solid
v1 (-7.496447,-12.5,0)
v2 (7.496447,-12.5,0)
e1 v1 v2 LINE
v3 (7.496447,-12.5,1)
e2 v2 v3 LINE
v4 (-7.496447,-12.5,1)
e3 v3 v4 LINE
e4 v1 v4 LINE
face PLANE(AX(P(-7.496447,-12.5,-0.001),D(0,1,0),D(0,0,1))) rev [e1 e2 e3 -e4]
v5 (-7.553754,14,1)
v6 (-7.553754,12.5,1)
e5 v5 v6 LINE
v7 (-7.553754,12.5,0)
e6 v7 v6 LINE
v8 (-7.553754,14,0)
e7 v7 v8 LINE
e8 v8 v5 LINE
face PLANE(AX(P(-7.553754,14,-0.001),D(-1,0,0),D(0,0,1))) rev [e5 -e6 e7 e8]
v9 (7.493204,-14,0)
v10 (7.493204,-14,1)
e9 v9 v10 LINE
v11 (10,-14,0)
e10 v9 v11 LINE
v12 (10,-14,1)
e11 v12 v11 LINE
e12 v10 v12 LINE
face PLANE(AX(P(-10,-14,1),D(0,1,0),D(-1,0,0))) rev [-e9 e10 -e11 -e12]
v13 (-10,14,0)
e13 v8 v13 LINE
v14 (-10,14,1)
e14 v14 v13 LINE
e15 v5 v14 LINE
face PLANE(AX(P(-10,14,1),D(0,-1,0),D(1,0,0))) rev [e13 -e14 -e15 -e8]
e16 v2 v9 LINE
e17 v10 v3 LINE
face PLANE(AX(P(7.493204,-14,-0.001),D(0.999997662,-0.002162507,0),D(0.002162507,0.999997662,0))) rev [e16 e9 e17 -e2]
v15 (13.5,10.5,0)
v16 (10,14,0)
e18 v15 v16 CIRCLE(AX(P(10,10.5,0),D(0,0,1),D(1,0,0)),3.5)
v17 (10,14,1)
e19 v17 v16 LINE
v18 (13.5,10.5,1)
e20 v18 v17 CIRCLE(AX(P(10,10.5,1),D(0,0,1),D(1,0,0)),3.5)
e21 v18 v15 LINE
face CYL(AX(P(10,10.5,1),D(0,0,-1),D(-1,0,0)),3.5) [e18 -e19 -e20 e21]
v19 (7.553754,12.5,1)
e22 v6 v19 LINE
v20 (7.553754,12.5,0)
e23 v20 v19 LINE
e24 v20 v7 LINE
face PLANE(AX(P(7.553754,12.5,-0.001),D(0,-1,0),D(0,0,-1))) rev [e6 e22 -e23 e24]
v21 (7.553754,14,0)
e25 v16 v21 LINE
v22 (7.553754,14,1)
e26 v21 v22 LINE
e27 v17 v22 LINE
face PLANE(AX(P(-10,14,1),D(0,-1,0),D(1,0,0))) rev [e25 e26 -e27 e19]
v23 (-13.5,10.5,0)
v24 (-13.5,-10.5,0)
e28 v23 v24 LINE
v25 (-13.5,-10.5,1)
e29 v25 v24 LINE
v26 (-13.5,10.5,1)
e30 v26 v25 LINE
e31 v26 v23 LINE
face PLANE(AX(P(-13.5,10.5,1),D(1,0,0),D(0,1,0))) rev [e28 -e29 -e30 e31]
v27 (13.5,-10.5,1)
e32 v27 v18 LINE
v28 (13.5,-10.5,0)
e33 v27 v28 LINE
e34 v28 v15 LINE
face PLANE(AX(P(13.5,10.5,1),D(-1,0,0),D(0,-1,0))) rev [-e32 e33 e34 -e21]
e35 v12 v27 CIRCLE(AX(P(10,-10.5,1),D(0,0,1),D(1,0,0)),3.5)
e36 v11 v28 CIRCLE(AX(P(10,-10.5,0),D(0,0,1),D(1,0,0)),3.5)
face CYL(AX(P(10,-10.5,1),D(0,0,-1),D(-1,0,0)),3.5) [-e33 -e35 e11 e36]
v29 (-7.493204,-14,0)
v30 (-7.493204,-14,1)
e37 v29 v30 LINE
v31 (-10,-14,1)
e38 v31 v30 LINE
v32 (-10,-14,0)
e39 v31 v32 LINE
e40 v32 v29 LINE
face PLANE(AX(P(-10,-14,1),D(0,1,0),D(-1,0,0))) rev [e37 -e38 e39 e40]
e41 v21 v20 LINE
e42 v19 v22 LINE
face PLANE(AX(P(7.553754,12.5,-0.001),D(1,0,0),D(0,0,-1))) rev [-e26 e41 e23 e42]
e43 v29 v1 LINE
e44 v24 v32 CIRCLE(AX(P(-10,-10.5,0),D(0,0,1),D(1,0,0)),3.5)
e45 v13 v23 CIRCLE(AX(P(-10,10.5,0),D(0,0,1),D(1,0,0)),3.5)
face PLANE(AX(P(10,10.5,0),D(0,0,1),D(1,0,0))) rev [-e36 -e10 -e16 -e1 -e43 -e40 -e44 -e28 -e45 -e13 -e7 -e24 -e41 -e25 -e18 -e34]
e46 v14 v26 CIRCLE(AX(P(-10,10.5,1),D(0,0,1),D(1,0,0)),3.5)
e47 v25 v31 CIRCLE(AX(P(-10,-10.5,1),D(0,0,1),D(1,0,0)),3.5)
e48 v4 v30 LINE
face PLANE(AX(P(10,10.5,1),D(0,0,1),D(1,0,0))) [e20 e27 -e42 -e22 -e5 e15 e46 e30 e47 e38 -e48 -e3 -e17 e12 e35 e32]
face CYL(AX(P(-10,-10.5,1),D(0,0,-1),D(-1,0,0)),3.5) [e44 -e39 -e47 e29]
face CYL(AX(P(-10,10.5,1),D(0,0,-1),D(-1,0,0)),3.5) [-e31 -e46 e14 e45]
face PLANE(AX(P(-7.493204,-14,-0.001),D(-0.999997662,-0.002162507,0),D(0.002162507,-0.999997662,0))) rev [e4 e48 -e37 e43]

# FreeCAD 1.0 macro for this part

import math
import FreeCAD as App
import Part
import Sketcher
Q = App.Units.Quantity

doc = App.newDocument("Part")
body = doc.addObject("PartDesign::Body", "Body")

# Sketch on XY plane
sketch1 = doc.addObject("Sketcher::SketchObject", "Sketch")
body.addObject(sketch1)
sketch1.AttachmentSupport = (doc.XY_Plane, [""])
sketch1.MapMode = "FlatFace"
sketch1.addGeometry([
    Part.LineSegment(App.Vector(-13.5, 10.5, 0), App.Vector(-13.5, -10.5, 0)),  # 0
    Part.ArcOfCircle(Part.Circle(App.Vector(-10, -10.5, 0), App.Vector(0, 0, 1), 3.5), math.radians(-180), math.radians(-90)),  # 1
    Part.LineSegment(App.Vector(-10, -14, 0), App.Vector(10, -14, 0)),  # 2
    Part.ArcOfCircle(Part.Circle(App.Vector(10, -10.5, 0), App.Vector(0, 0, 1), 3.5), math.radians(-90), math.radians(0)),  # 3
    Part.LineSegment(App.Vector(13.5, -10.5, 0), App.Vector(13.5, 10.5, 0)),  # 4
    Part.ArcOfCircle(Part.Circle(App.Vector(10, 10.5, 0), App.Vector(0, 0, 1), 3.5), math.radians(0), math.radians(90)),  # 5
    Part.LineSegment(App.Vector(10, 14, 0), App.Vector(-10, 14, 0)),  # 6
    Part.ArcOfCircle(Part.Circle(App.Vector(-10, 10.5, 0), App.Vector(0, 0, 1), 3.5), math.radians(90), math.radians(180)),  # 7
], False)
sketch1.addConstraint([
    Sketcher.Constraint("Tangent", 0, 2, 1, 1),
    Sketcher.Constraint("Tangent", 1, 2, 2, 1),
    Sketcher.Constraint("Tangent", 2, 2, 3, 1),
    Sketcher.Constraint("Tangent", 3, 2, 4, 1),
    Sketcher.Constraint("Tangent", 4, 2, 5, 1),
    Sketcher.Constraint("Tangent", 5, 2, 6, 1),
    Sketcher.Constraint("Tangent", 6, 2, 7, 1),
    Sketcher.Constraint("Tangent", 7, 2, 0, 1),
    Sketcher.Constraint("Vertical", 0),
    Sketcher.Constraint("Horizontal", 2),
    Sketcher.Constraint("Vertical", 4),
    Sketcher.Constraint("Horizontal", 6),
    Sketcher.Constraint("Equal", 1, 3),
    Sketcher.Constraint("Equal", 3, 5),
    Sketcher.Constraint("Equal", 5, 7),
    Sketcher.Constraint("Symmetric", 1, 3, 5, 3, -1, 1),
    Sketcher.Constraint("Radius", 1, Q("3.5 mm")),
    Sketcher.Constraint("DistanceX", 2, 1, 2, 2, Q("20 mm")),
    Sketcher.Constraint("DistanceY", 0, 2, 0, 1, Q("21 mm")),
])
pad1 = doc.addObject("PartDesign::Pad", "Pad")
body.addObject(pad1)
pad1.Profile = sketch1
pad1.Length = 1

# Sketch on XY plane
sketch2 = doc.addObject("Sketcher::SketchObject", "Sketch001")
body.addObject(sketch2)
sketch2.AttachmentSupport = (doc.XY_Plane, [""])
sketch2.MapMode = "FlatFace"
sketch2.AttachmentOffset = App.Placement(App.Vector(0, 0, 1), App.Rotation())
sketch2.addGeometry([
    Part.LineSegment(App.Vector(-7.6, 14, 0), App.Vector(-7.6, 12.5, 0)),
    Part.LineSegment(App.Vector(-7.6, 12.5, 0), App.Vector(7.6, 12.5, 0)),
    Part.LineSegment(App.Vector(7.6, 12.5, 0), App.Vector(7.6, 14, 0)),
    Part.LineSegment(App.Vector(7.6, 14, 0), App.Vector(-7.6, 14, 0)),
], False)
sketch2.addConstraint([
    Sketcher.Constraint("Coincident", 0, 2, 1, 1),
    Sketcher.Constraint("Coincident", 1, 2, 2, 1),
    Sketcher.Constraint("Coincident", 2, 2, 3, 1),
    Sketcher.Constraint("Coincident", 3, 2, 0, 1),
    Sketcher.Constraint("Vertical", 0),
    Sketcher.Constraint("Horizontal", 1),
    Sketcher.Constraint("Vertical", 2),
    Sketcher.Constraint("Horizontal", 3),
    Sketcher.Constraint("DistanceY", 0, 2, 0, 1, Q("1.5 mm")),
    Sketcher.Constraint("DistanceY", -1, 1, 2, 2, Q("14 mm")),
    Sketcher.Constraint("DistanceX", 1, 1, 1, 2, Q("15.107508 mm")),
    Sketcher.Constraint("DistanceX", 0, 2, -1, 1, Q("7.553754 mm")),
])
pocket1 = doc.addObject("PartDesign::Pocket", "Pocket")
body.addObject(pocket1)
pocket1.Profile = sketch2
pocket1.Type = "UpToFirst"

# Sketch on XY plane
sketch3 = doc.addObject("Sketcher::SketchObject", "Sketch002")
body.addObject(sketch3)
sketch3.AttachmentSupport = (doc.XY_Plane, [""])
sketch3.MapMode = "FlatFace"
sketch3.AttachmentOffset = App.Placement(App.Vector(0, 0, 1), App.Rotation())
sketch3.addGeometry([
    Part.LineSegment(App.Vector(-7.5, -14, 0), App.Vector(7.5, -14, 0)),
    Part.LineSegment(App.Vector(7.5, -14, 0), App.Vector(7.5, -12.5, 0)),
    Part.LineSegment(App.Vector(7.5, -12.5, 0), App.Vector(-7.5, -12.5, 0)),
    Part.LineSegment(App.Vector(-7.5, -12.5, 0), App.Vector(-7.5, -14, 0)),
], False)
sketch3.addConstraint([
    Sketcher.Constraint("Coincident", 0, 2, 1, 1),
    Sketcher.Constraint("Coincident", 1, 2, 2, 1),
    Sketcher.Constraint("Coincident", 2, 2, 3, 1),
    Sketcher.Constraint("Coincident", 3, 2, 0, 1),
    Sketcher.Constraint("Horizontal", 0),
    Sketcher.Constraint("Horizontal", 2),
    Sketcher.Constraint("DistanceY", 0, 2, -1, 1, Q("14 mm")),
    Sketcher.Constraint("DistanceY", 1, 2, -1, 1, Q("12.5 mm")),
    Sketcher.Constraint("DistanceX", 0, 1, 0, 2, Q("14.986407 mm")),
    Sketcher.Constraint("DistanceX", 2, 2, 2, 1, Q("14.992895 mm")),
    Sketcher.Constraint("DistanceX", 2, 2, 0, 2, Q("14.989651 mm")),
    Sketcher.Constraint("DistanceX", -1, 1, 0, 2, Q("7.493204 mm")),
])
pocket2 = doc.addObject("PartDesign::Pocket", "Pocket001")
body.addObject(pocket2)
pocket2.Profile = sketch3
pocket2.Type = "UpToFirst"

doc.recompute()
